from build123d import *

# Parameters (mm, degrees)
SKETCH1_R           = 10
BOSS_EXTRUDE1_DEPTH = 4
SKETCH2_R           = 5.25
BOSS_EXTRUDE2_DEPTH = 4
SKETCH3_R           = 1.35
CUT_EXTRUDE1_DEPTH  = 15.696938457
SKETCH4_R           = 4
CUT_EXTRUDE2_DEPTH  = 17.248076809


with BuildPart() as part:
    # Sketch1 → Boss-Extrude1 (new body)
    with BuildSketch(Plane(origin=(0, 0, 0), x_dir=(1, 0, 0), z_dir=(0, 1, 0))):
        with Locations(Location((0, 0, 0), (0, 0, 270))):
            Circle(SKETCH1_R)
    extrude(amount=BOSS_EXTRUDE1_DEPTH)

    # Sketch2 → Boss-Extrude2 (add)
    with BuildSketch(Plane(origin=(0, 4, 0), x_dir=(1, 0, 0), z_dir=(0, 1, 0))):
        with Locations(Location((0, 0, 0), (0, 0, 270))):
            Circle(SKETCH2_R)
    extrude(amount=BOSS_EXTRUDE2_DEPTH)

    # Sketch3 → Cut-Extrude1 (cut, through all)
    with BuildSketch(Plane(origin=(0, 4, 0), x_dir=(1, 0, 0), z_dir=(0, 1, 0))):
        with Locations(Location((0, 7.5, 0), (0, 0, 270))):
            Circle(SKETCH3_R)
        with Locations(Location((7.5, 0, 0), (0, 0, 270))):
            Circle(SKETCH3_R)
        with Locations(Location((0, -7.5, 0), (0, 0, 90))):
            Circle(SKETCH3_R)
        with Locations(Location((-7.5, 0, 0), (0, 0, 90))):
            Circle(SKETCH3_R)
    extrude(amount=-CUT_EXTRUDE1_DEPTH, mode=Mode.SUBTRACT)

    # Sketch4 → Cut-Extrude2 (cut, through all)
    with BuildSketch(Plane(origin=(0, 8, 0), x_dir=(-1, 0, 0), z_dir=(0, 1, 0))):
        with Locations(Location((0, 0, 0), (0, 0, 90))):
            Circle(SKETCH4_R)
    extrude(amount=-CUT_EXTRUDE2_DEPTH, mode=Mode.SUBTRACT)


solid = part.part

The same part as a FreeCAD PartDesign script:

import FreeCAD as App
import Part
import Sketcher

V = App.Vector
Q = App.Units.Quantity

doc = App.newDocument("Part")
params = doc.addObject("Spreadsheet::Sheet", "Params")
for row, (alias, value) in enumerate([
    ("sketch1_diameter", "20 mm"),
    ("pad1_length", "4 mm"),
    ("sketch2_diameter", "10.5 mm"),
    ("pad2_length", "4 mm"),
    ("sketch3_diameter", "2.7 mm"),
    ("sketch4_diameter", "8 mm"),
], start=1):
    params.set(f"A{row}", alias)
    params.set(f"B{row}", "=" + value)
    params.setAlias(f"B{row}", alias)

body = doc.addObject("PartDesign::Body", "Body")

# Sketch on XZ plane
sketch1 = doc.addObject("Sketcher::SketchObject", "Sketch")
body.addObject(sketch1)
sketch1.AttachmentSupport = (doc.XZ_Plane, [""])
sketch1.MapMode = "FlatFace"
sketch1.addGeometry(Part.Circle(V(0, 0, 0), V(0, 0, 1), 10), False)
sketch1.addConstraint([
    Sketcher.Constraint("Coincident", 0, 3, -1, 1),
    Sketcher.Constraint("Diameter", 0, Q("20 mm")),
])
sketch1.setExpression("Constraints[1]", "Params.sketch1_diameter")
pad1 = doc.addObject("PartDesign::Pad", "Pad")
body.addObject(pad1)
pad1.Profile = sketch1
pad1.setExpression("Length", "Params.pad1_length")
pad1.Reversed = True

# Sketch on XZ plane
sketch2 = doc.addObject("Sketcher::SketchObject", "Sketch001")
body.addObject(sketch2)
sketch2.AttachmentSupport = (doc.XZ_Plane, [""])
sketch2.MapMode = "FlatFace"
sketch2.AttachmentOffset = App.Placement(V(0, 0, -4), App.Rotation())
sketch2.addGeometry(Part.Circle(V(0, 0, 0), V(0, 0, 1), 5), False)
sketch2.addConstraint([
    Sketcher.Constraint("Coincident", 0, 3, -1, 1),
    Sketcher.Constraint("Diameter", 0, Q("10.5 mm")),
])
sketch2.setExpression("Constraints[1]", "Params.sketch2_diameter")
pad2 = doc.addObject("PartDesign::Pad", "Pad001")
body.addObject(pad2)
pad2.Profile = sketch2
pad2.setExpression("Length", "Params.pad2_length")
pad2.Reversed = True

# Sketch on XZ plane
sketch3 = doc.addObject("Sketcher::SketchObject", "Sketch002")
body.addObject(sketch3)
sketch3.AttachmentSupport = (doc.XZ_Plane, [""])
sketch3.MapMode = "FlatFace"
sketch3.AttachmentOffset = App.Placement(V(0, 0, -4), App.Rotation())
sketch3.addGeometry([
    Part.Circle(V(0, -7.5, 0), V(0, 0, 1), 1.4),
    Part.Circle(V(7.5, 0, 0), V(0, 0, 1), 1.4),
    Part.Circle(V(0, 7.5, 0), V(0, 0, 1), 1.4),
    Part.Circle(V(-7.5, 0, 0), V(0, 0, 1), 1.4),
], False)
sketch3.addConstraint([
    Sketcher.Constraint("Equal", 0, 1),
    Sketcher.Constraint("Equal", 1, 2),
    Sketcher.Constraint("Equal", 2, 3),
    Sketcher.Constraint("Symmetric", 0, 3, 2, 3, -1, 1),
    Sketcher.Constraint("Symmetric", 1, 3, 3, 3, -1, 1),
    Sketcher.Constraint("PointOnObject", 0, 3, -2),
    Sketcher.Constraint("PointOnObject", 1, 3, -1),
    Sketcher.Constraint("Diameter", 0, Q("2.7 mm")),
    Sketcher.Constraint("DistanceY", 0, 3, 2, 3, Q("15 mm")),
    Sketcher.Constraint("DistanceX", 3, 3, 1, 3, Q("15 mm")),
])
sketch3.setExpression("Constraints[7]", "Params.sketch3_diameter")
pocket1 = doc.addObject("PartDesign::Pocket", "Pocket")
body.addObject(pocket1)
pocket1.Profile = sketch3
pocket1.Type = "ThroughAll"
pocket1.Reversed = True

# Sketch on XZ plane
sketch4 = doc.addObject("Sketcher::SketchObject", "Sketch003")
body.addObject(sketch4)
sketch4.AttachmentSupport = (doc.XZ_Plane, [""])
sketch4.MapMode = "FlatFace"
sketch4.AttachmentOffset = App.Placement(V(0, 0, -8), App.Rotation())
sketch4.addGeometry(Part.Circle(V(0, 0, 0), V(0, 0, 1), 4), False)
sketch4.addConstraint([
    Sketcher.Constraint("Coincident", 0, 3, -1, 1),
    Sketcher.Constraint("Diameter", 0, Q("8 mm")),
])
sketch4.setExpression("Constraints[1]", "Params.sketch4_diameter")
pocket2 = doc.addObject("PartDesign::Pocket", "Pocket001")
body.addObject(pocket2)
pocket2.Profile = sketch4
pocket2.Type = "ThroughAll"
pocket2.Reversed = True

doc.recompute()
